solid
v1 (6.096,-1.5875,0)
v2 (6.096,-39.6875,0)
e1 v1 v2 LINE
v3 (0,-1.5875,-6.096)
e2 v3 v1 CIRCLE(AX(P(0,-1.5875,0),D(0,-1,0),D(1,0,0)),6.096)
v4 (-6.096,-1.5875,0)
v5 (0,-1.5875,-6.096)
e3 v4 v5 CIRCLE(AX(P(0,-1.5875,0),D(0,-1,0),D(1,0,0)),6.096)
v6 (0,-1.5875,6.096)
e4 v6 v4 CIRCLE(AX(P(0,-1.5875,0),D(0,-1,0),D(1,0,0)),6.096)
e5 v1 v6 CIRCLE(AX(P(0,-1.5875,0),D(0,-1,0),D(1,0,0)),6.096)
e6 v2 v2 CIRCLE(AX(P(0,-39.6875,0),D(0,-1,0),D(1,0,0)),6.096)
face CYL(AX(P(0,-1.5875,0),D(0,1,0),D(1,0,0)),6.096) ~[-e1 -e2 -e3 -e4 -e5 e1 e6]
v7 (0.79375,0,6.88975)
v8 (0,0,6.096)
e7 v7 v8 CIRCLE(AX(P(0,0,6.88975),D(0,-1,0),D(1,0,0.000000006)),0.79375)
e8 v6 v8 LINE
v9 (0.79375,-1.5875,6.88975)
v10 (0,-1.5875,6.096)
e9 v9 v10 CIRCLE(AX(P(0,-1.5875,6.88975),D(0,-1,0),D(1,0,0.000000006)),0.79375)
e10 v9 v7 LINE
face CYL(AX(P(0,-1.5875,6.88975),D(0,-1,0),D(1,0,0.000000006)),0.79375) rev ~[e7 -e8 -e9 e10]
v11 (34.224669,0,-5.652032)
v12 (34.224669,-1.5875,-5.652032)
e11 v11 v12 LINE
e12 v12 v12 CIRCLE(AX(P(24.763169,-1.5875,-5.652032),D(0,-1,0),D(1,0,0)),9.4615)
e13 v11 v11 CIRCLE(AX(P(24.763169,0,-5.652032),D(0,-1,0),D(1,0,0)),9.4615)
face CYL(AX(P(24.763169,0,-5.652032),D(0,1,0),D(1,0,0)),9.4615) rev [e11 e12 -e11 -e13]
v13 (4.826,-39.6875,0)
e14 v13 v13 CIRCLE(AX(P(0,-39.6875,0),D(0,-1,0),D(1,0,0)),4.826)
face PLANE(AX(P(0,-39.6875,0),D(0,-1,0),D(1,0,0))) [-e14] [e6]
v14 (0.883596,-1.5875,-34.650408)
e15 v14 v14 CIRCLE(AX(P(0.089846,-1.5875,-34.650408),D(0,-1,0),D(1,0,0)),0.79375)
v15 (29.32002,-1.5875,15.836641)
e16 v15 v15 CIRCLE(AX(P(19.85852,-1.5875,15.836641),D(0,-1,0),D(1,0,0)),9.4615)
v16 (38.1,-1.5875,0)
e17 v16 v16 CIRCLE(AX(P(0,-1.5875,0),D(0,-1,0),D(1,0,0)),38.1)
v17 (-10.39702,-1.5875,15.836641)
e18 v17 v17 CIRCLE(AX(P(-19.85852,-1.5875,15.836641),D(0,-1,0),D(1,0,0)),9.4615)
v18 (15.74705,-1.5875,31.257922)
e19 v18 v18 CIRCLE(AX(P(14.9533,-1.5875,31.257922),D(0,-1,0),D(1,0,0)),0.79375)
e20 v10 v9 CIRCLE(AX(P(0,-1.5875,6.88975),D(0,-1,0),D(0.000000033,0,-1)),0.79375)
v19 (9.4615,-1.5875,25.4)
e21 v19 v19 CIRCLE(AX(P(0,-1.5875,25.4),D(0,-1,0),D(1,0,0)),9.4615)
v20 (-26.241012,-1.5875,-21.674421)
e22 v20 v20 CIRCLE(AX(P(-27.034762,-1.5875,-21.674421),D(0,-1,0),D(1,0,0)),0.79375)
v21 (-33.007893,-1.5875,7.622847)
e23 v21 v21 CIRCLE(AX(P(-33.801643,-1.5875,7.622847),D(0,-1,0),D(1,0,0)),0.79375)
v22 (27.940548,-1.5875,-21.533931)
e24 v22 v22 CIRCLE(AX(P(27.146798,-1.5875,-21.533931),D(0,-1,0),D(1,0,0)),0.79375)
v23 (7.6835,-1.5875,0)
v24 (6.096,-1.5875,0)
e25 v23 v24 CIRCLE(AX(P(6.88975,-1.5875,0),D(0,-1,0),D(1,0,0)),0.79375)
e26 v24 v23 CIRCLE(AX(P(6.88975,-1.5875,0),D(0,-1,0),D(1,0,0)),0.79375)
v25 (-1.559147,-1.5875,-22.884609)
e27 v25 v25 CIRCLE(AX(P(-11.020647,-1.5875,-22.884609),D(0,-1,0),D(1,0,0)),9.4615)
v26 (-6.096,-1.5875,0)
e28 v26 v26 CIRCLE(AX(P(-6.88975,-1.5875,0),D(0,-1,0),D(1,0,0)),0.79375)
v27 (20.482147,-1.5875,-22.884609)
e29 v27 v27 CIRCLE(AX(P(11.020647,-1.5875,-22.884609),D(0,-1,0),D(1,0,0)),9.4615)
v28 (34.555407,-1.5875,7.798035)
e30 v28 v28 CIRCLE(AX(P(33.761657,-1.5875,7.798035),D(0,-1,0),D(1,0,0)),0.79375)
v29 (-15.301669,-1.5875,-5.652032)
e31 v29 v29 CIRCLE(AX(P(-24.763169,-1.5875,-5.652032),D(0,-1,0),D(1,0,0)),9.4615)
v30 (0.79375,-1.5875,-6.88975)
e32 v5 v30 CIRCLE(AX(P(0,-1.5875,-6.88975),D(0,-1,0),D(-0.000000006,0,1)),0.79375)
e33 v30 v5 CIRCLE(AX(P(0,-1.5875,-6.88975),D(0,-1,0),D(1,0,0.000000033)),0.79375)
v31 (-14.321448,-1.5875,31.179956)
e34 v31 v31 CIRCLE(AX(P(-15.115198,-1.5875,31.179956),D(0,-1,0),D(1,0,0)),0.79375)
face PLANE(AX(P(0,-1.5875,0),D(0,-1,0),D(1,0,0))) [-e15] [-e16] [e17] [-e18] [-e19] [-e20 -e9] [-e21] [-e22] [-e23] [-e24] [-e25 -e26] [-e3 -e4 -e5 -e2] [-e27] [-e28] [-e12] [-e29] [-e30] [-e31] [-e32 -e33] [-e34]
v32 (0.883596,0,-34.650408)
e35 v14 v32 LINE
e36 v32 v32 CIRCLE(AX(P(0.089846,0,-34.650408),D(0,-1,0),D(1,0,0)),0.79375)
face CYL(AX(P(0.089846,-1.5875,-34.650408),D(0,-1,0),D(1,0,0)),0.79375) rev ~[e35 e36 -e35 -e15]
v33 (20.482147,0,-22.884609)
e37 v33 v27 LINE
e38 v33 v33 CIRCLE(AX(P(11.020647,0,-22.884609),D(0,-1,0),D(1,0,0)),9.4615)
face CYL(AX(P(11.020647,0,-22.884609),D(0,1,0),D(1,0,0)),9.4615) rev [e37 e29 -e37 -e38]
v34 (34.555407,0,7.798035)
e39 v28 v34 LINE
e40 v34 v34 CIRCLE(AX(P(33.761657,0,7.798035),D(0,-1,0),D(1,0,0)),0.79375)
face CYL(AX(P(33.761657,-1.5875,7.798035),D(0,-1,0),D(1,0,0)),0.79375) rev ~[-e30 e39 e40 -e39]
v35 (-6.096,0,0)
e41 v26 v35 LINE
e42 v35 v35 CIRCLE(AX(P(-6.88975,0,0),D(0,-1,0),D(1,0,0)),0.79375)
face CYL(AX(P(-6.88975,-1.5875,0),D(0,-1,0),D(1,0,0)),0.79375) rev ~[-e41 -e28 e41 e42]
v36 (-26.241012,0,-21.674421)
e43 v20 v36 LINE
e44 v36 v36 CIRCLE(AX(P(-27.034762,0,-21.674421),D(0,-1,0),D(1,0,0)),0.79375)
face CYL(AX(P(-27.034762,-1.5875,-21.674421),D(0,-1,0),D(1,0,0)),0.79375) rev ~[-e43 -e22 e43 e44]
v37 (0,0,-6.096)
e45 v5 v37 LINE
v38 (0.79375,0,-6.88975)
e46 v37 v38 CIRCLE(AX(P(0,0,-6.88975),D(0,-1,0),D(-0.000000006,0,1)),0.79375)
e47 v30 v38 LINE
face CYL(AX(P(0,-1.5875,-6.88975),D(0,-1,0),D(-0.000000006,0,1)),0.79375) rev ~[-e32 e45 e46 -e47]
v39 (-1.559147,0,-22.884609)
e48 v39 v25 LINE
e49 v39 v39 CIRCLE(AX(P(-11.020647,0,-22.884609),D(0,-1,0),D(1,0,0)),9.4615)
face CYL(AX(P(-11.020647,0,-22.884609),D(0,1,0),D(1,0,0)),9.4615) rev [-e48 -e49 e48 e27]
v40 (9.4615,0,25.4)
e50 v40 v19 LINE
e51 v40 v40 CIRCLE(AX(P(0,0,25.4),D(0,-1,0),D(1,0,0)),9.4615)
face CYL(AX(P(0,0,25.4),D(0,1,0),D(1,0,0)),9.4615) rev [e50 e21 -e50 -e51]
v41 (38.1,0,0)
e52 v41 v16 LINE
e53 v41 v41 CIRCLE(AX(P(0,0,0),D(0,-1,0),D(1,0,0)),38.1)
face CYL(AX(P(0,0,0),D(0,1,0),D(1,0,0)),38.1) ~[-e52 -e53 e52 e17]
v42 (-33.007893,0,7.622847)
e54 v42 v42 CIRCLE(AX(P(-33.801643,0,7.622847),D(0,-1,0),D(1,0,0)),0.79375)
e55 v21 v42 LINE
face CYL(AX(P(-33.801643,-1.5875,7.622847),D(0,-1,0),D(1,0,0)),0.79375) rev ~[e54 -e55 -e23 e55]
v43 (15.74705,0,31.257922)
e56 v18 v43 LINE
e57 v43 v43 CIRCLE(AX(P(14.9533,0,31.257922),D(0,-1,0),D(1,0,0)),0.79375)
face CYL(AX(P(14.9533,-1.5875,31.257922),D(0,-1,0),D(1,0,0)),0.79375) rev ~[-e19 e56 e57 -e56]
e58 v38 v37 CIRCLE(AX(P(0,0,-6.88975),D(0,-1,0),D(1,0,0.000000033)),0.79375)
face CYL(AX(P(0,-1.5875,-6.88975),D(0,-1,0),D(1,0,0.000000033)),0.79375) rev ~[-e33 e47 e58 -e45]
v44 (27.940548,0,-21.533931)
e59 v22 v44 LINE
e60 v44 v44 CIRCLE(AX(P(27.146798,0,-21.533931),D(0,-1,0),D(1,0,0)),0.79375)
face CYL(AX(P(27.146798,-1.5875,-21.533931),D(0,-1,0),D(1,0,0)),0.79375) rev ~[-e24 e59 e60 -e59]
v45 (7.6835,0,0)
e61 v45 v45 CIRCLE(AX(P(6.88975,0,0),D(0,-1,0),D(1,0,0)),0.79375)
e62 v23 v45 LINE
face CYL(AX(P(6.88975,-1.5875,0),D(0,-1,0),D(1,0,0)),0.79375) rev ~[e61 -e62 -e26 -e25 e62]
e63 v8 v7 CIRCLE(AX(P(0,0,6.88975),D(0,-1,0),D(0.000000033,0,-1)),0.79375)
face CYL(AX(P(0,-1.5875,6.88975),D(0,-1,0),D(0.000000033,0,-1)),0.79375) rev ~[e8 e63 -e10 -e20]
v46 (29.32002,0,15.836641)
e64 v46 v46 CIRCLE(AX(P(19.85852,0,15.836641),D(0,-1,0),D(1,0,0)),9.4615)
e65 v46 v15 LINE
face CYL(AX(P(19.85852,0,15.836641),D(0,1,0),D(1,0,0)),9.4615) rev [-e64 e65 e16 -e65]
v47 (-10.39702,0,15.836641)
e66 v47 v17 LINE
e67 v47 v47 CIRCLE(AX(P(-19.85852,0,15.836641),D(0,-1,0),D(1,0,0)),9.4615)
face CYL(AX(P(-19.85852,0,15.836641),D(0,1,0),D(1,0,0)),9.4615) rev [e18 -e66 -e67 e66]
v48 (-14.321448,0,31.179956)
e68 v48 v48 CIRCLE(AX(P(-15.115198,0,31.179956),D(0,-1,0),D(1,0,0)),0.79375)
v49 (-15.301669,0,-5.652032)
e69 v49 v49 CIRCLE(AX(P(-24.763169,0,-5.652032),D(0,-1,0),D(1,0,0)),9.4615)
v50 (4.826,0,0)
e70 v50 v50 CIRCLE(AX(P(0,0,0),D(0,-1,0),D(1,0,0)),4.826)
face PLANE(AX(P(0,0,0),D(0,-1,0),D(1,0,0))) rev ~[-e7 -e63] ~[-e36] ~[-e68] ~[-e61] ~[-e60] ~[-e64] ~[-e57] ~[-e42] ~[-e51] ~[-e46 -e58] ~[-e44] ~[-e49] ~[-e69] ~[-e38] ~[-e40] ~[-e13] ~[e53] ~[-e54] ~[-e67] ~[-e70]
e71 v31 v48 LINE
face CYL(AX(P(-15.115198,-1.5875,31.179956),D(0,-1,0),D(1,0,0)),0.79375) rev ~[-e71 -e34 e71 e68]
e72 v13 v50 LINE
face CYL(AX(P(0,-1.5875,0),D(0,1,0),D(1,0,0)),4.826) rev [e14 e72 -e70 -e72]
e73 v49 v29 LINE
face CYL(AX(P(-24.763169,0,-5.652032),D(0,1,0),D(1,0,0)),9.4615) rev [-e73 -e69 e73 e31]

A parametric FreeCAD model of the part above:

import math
import FreeCAD as App
import Part
import Sketcher

V = App.Vector
Q = App.Units.Quantity

doc = App.newDocument("Part")
body = doc.addObject("PartDesign::Body", "Body")

# Sketch on XZ plane
sketch1 = body.newObject("Sketcher::SketchObject", "Sketch")
sketch1.AttachmentSupport = (doc.getObject("XZ_Plane"), [""])
sketch1.MapMode = "FlatFace"
sketch1.addGeometry(Part.Circle(V(0, 0, 0), V(0, 0, 1), 38.1), False)
sketch1.addGeometry(Part.Circle(V(-11, -22.9, 0), V(0, 0, 1), 9.5), False)
sketch1.addGeometry(Part.Circle(V(-24.8, -5.7, 0), V(0, 0, 1), 9.5), False)
sketch1.addGeometry(Part.Circle(V(11, -22.9, 0), V(0, 0, 1), 9.5), False)
sketch1.addGeometry(Part.Circle(V(0, 0, 0), V(0, 0, 1), 4.8), False)
sketch1.addGeometry(Part.Circle(V(24.8, -5.7, 0), V(0, 0, 1), 9.5), False)
sketch1.addGeometry(Part.Circle(V(-19.9, 15.8, 0), V(0, 0, 1), 9.5), False)
sketch1.addGeometry(Part.Circle(V(19.9, 15.8, 0), V(0, 0, 1), 9.5), False)
sketch1.addGeometry(Part.Circle(V(0, 25.4, 0), V(0, 0, 1), 9.5), False)
sketch1.addConstraint(Sketcher.Constraint("Coincident", 0, 3, -1, 1))
sketch1.addConstraint(Sketcher.Constraint("Coincident", 4, 3, -1, 1))
sketch1.addConstraint(Sketcher.Constraint("Equal", 1, 2))
sketch1.addConstraint(Sketcher.Constraint("Equal", 2, 3))
sketch1.addConstraint(Sketcher.Constraint("Equal", 3, 5))
sketch1.addConstraint(Sketcher.Constraint("Equal", 5, 6))
sketch1.addConstraint(Sketcher.Constraint("Equal", 6, 7))
sketch1.addConstraint(Sketcher.Constraint("Equal", 7, 8))
sketch1.addConstraint(Sketcher.Constraint("Symmetric", 1, 3, 3, 3, -2))
sketch1.addConstraint(Sketcher.Constraint("Symmetric", 2, 3, 5, 3, -2))
sketch1.addConstraint(Sketcher.Constraint("Symmetric", 6, 3, 7, 3, -2))
sketch1.addConstraint(Sketcher.Constraint("PointOnObject", 8, 3, -2))
sketch1.addConstraint(Sketcher.Constraint("Diameter", 0, Q("3 in")))
sketch1.addConstraint(Sketcher.Constraint("Diameter", 4, Q("0.38 in")))
sketch1.addConstraint(Sketcher.Constraint("Diameter", 1, Q("0.745 in")))
sketch1.addConstraint(Sketcher.Constraint("DistanceY", -1, 1, 8, 3, Q("1 in")))
sketch1.addConstraint(Sketcher.Constraint("DistanceY", 1, 3, -1, 1, Q("22.884609 mm")))
sketch1.addConstraint(Sketcher.Constraint("DistanceX", 2, 3, -1, 1, Q("24.763169 mm")))
sketch1.addConstraint(Sketcher.Constraint("DistanceX", 6, 3, -1, 1, Q("19.85852 mm")))
sketch1.addConstraint(Sketcher.Constraint("DistanceY", -1, 1, 6, 3, Q("15.836641 mm")))
sketch1.addConstraint(Sketcher.Constraint("DistanceY", 2, 3, 8, 3, Q("31.052032 mm")))
sketch1.addConstraint(Sketcher.Constraint("DistanceX", 1, 3, -1, 1, Q("11.020647 mm")))
pad1 = body.newObject("PartDesign::Pad", "Pad")
pad1.Profile = sketch1
pad1.Length = Q("0.0625 in")

# Sketch on XZ plane
sketch2 = body.newObject("Sketcher::SketchObject", "Sketch001")
sketch2.AttachmentSupport = (doc.getObject("XZ_Plane"), [""])
sketch2.MapMode = "FlatFace"
sketch2.AttachmentOffset = App.Placement(V(0, 0, 0.0625 * 25.4), App.Rotation())
sketch2.addGeometry(Part.Circle(V(0, 0, 0), V(0, 0, 1), 6.1), False)
sketch2.addGeometry(Part.Circle(V(0, 0, 0), V(0, 0, 1), 4.8), False)
sketch2.addConstraint(Sketcher.Constraint("Coincident", 0, 3, -1, 1))
sketch2.addConstraint(Sketcher.Constraint("Coincident", 1, 3, -1, 1))
sketch2.addConstraint(Sketcher.Constraint("Diameter", 0, Q("0.48 in")))
sketch2.addConstraint(Sketcher.Constraint("Diameter", 1, Q("0.38 in")))
pad2 = body.newObject("PartDesign::Pad", "Pad001")
pad2.Profile = sketch2
pad2.Length = Q("1.5 in")

# Sketch on XZ plane
sketch3 = body.newObject("Sketcher::SketchObject", "Sketch002")
sketch3.AttachmentSupport = (doc.getObject("XZ_Plane"), [""])
sketch3.MapMode = "FlatFace"
sketch3.AttachmentOffset = App.Placement(V(0, 0, 0.0625 * 25.4), App.Rotation())
sketch3.addGeometry(Part.ArcOfCircle(Part.Circle(V(0, -6.9, 0), V(0, 0, 1), 0.8), math.radians(0), math.radians(90)), False)
sketch3.addGeometry(Part.ArcOfCircle(Part.Circle(V(0, -6.9, 0), V(0, 0, 1), 0.8), math.radians(90), math.radians(360)), False)
sketch3.addGeometry(Part.Circle(V(6.9, 0, 0), V(0, 0, 1), 0.8), False)
sketch3.addGeometry(Part.Circle(V(27.1, -21.5, 0), V(0, 0, 1), 0.8), False)
sketch3.addGeometry(Part.Circle(V(33.8, 7.8, 0), V(0, 0, 1), 0.8), False)
sketch3.addGeometry(Part.Circle(V(0.1, -34.7, 0), V(0, 0, 1), 0.8), False)
sketch3.addGeometry(Part.Circle(V(-27, -21.7, 0), V(0, 0, 1), 0.8), False)
sketch3.addGeometry(Part.Circle(V(-33.8, 7.6, 0), V(0, 0, 1), 0.8), False)
sketch3.addGeometry(Part.Circle(V(-15.1, 31.2, 0), V(0, 0, 1), 0.8), False)
sketch3.addGeometry(Part.Circle(V(15, 31.3, 0), V(0, 0, 1), 0.8), False)
sketch3.addGeometry(Part.ArcOfCircle(Part.Circle(V(0, 6.9, 0), V(0, 0, 1), 0.8), math.radians(0), math.radians(270)), False)
sketch3.addGeometry(Part.ArcOfCircle(Part.Circle(V(0, 6.9, 0), V(0, 0, 1), 0.8), math.radians(-90), math.radians(0)), False)
sketch3.addGeometry(Part.Circle(V(-6.9, 0, 0), V(0, 0, 1), 0.8), False)
sketch3.addConstraint(Sketcher.Constraint("Tangent", 0, 1, 1, 2))
sketch3.addConstraint(Sketcher.Constraint("Coincident", 1, 1, 0, 2))
sketch3.addConstraint(Sketcher.Constraint("Tangent", 10, 1, 11, 2))
sketch3.addConstraint(Sketcher.Constraint("Coincident", 11, 1, 10, 2))
sketch3.addConstraint(Sketcher.Constraint("Equal", 1, 2))
sketch3.addConstraint(Sketcher.Constraint("Equal", 2, 3))
sketch3.addConstraint(Sketcher.Constraint("Equal", 3, 4))
sketch3.addConstraint(Sketcher.Constraint("Equal", 4, 5))
sketch3.addConstraint(Sketcher.Constraint("Equal", 5, 6))
sketch3.addConstraint(Sketcher.Constraint("Equal", 6, 7))
sketch3.addConstraint(Sketcher.Constraint("Equal", 7, 8))
sketch3.addConstraint(Sketcher.Constraint("Equal", 8, 9))
sketch3.addConstraint(Sketcher.Constraint("Equal", 9, 10))
sketch3.addConstraint(Sketcher.Constraint("Equal", 11, 12))
sketch3.addConstraint(Sketcher.Constraint("Symmetric", 0, 3, 10, 3, -1, 1))
sketch3.addConstraint(Sketcher.Constraint("Symmetric", 2, 3, 12, 3, -1, 1))
sketch3.addConstraint(Sketcher.Constraint("Symmetric", 0, 1, 10, 1, -1))
sketch3.addConstraint(Sketcher.Constraint("PointOnObject", 2, 3, -1))
sketch3.addConstraint(Sketcher.Constraint("PointOnObject", 1, 1, -2))
sketch3.addConstraint(Sketcher.Constraint("PointOnObject", 11, 1, -2))
sketch3.addConstraint(Sketcher.Constraint("Horizontal", 1, 3, 0, 1))
sketch3.addConstraint(Sketcher.Constraint("Diameter", 2, Q("0.0625 in")))
sketch3.addConstraint(Sketcher.Constraint("DistanceY", 1, 1, -1, 1, Q("0.24 in")))
sketch3.addConstraint(Sketcher.Constraint("DistanceX", 0, 1, 2, 3, Q("0.24 in")))
sketch3.addConstraint(Sketcher.Constraint("DistanceX", -1, 1, 3, 3, Q("27.146798 mm")))
sketch3.addConstraint(Sketcher.Constraint("DistanceX", -1, 1, 9, 3, Q("14.9533 mm")))
sketch3.addConstraint(Sketcher.Constraint("DistanceX", 8, 3, 1, 3, Q("15.115198 mm")))
sketch3.addConstraint(Sketcher.Constraint("DistanceY", 3, 3, -1, 1, Q("21.533931 mm")))
sketch3.addConstraint(Sketcher.Constraint("DistanceY", 6, 3, -1, 1, Q("21.674421 mm")))
sketch3.addConstraint(Sketcher.Constraint("DistanceX", 3, 3, 4, 3, Q("6.614859 mm")))
sketch3.addConstraint(Sketcher.Constraint("DistanceY", 5, 3, 1, 3, Q("27.760658 mm")))
sketch3.addConstraint(Sketcher.Constraint("DistanceX", 5, 3, 3, 3, Q("27.056952 mm")))
sketch3.addConstraint(Sketcher.Constraint("DistanceX", 6, 3, 5, 3, Q("27.124608 mm")))
sketch3.addConstraint(Sketcher.Constraint("DistanceX", 7, 3, 6, 3, Q("6.766881 mm")))
sketch3.addConstraint(Sketcher.Constraint("DistanceY", 7, 3, 8, 3, Q("23.557109 mm")))
sketch3.addConstraint(Sketcher.Constraint("DistanceY", 1, 3, 9, 3, Q("38.147672 mm")))
sketch3.addConstraint(Sketcher.Constraint("DistanceY", -1, 1, 4, 3, Q("7.798035 mm")))
sketch3.addConstraint(Sketcher.Constraint("DistanceY", -1, 1, 7, 3, Q("7.622847 mm")))
pocket1 = body.newObject("PartDesign::Pocket", "Pocket")
pocket1.Profile = sketch3
pocket1.Length = Q("11.12 in")

doc.recompute()
